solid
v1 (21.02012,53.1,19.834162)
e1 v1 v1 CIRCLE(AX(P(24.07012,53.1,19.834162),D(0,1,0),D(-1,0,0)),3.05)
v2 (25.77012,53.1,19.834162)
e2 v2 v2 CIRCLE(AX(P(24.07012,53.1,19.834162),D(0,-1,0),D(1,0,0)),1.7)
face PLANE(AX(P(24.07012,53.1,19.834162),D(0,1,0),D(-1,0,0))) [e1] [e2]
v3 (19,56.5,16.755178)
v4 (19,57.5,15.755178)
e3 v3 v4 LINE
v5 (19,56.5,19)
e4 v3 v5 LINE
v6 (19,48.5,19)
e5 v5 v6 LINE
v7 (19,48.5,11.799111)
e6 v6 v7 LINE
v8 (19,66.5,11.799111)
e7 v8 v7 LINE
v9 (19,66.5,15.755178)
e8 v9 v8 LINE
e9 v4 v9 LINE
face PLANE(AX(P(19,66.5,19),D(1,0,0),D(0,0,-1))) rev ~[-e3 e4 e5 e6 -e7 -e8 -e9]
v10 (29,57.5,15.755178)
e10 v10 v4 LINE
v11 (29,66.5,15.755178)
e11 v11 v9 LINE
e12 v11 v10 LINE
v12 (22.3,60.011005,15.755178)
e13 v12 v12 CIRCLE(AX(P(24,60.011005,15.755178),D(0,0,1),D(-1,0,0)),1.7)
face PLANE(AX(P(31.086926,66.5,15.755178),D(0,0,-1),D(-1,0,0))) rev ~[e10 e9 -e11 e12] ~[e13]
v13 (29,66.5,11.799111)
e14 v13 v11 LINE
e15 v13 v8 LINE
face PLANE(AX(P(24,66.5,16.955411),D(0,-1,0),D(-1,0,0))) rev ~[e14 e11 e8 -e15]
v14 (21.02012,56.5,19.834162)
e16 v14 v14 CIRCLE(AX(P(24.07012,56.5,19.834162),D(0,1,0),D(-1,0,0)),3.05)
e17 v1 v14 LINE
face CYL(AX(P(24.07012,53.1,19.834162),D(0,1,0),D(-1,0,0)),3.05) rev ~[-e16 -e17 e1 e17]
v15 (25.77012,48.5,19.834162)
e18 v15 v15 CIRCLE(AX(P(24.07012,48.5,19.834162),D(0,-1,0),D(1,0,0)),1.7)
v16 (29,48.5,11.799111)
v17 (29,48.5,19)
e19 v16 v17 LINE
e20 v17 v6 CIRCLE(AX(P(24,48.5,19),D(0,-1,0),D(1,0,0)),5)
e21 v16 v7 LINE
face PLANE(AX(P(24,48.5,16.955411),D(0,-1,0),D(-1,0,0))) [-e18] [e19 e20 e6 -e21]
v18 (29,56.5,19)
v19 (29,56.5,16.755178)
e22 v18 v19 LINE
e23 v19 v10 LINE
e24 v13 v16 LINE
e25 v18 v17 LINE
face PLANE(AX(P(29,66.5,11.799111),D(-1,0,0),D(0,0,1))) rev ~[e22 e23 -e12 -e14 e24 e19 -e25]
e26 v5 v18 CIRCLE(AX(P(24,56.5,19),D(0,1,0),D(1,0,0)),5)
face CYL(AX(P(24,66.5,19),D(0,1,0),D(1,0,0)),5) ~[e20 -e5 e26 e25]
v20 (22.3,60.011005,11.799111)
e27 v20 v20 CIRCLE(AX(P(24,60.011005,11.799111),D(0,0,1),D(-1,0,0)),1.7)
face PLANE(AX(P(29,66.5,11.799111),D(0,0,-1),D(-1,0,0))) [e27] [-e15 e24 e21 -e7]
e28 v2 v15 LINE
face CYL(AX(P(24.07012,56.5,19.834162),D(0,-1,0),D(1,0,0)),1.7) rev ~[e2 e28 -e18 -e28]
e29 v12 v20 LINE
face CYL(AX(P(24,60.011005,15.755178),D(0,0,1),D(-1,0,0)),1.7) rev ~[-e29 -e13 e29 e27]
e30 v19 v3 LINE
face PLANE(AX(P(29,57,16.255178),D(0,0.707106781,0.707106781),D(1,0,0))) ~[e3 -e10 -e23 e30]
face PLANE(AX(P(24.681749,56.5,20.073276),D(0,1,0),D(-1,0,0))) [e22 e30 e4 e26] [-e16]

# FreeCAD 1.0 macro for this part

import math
import FreeCAD as App
import Part
import Sketcher
from FreeCAD import Vector


def edges_at(feature, points):
    """Names of the edges that pass closest to the given points."""
    edges = feature.Shape.Edges
    near = lambda p: min(range(len(edges)), key=lambda i: edges[i].distToShape(Part.Vertex(*p))[0])
    return sorted({f"Edge{near(p) + 1}" for p in points})


def add_polygon(sketch, points):
    """Adds a closed chain of lines whose ends are joined by coincident constraints."""
    first, n = sketch.GeometryCount, len(points)
    for a, b in zip(points, points[1:] + points[:1]):
        sketch.addGeometry(Part.LineSegment(App.Vector(*a, 0), App.Vector(*b, 0)), False)
    for i in range(n):
        sketch.addConstraint(Sketcher.Constraint("Coincident", first + i, 2, first + (i + 1) % n, 1))

doc = App.newDocument("Part")
body = doc.addObject("PartDesign::Body", "Body")

sketch1 = doc.addObject("Sketcher::SketchObject", "Sketch")
body.addObject(sketch1)
sketch1.AttachmentSupport = (doc.XZ_Plane, [""])
sketch1.MapMode = "FlatFace"
sketch1.addGeometry([
    Part.ArcOfCircle(Part.Circle(Vector(0, 0, 0), Vector(0, 0, 1), 5), math.radians(180), math.radians(360)),
    Part.LineSegment(Vector(5, 0, 0), Vector(5, 7, 0)),
    Part.LineSegment(Vector(5, 7, 0), Vector(-5, 7, 0)),
    Part.LineSegment(Vector(-5, 7, 0), Vector(-5, 0, 0)),
], False)
sketch1.addConstraint([
    Sketcher.Constraint("Tangent", 0, 2, 1, 1),
    Sketcher.Constraint("Coincident", 1, 2, 2, 1),
    Sketcher.Constraint("Coincident", 2, 2, 3, 1),
    Sketcher.Constraint("Tangent", 3, 2, 0, 1),
    Sketcher.Constraint("Vertical", 1),
    Sketcher.Constraint("Horizontal", 2),
    Sketcher.Constraint("Vertical", 3),
    Sketcher.Constraint("Coincident", 0, 3, -1, 1),
    Sketcher.Constraint("Radius", 0, 5.0),
    Sketcher.Constraint("DistanceY", 1, 1, 1, 2, 7.200889),
])
pad1 = doc.addObject("PartDesign::Pad", "Pad")
body.addObject(pad1)
pad1.Profile = sketch1
pad1.Length = 18

sketch2 = doc.addObject("Sketcher::SketchObject", "Sketch001")
body.addObject(sketch2)
sketch2.AttachmentSupport = (doc.XZ_Plane, [""])
sketch2.MapMode = "FlatFace"
add_polygon(sketch2, [(-7, -5), (-7, 3), (6, 3), (6, -5)])
sketch2.addConstraint([
    Sketcher.Constraint("Vertical", 0),
    Sketcher.Constraint("Horizontal", 1),
    Sketcher.Constraint("Vertical", 2),
    Sketcher.Constraint("Horizontal", 3),
    Sketcher.Constraint("DistanceX", 1, 1, 1, 2, 12.810354),
    Sketcher.Constraint("DistanceY", 0, 1, 0, 2, 8.636197),
    Sketcher.Constraint("DistanceX", -1, 1, 1, 2, 5.723428),
    Sketcher.Constraint("DistanceY", -1, 1, 0, 2, 3.244822),
])
pocket1 = doc.addObject("PartDesign::Pocket", "Pocket")
body.addObject(pocket1)
pocket1.Profile = sketch2
pocket1.Length = 10
pocket1.Reversed = True

sketch3 = doc.addObject("Sketcher::SketchObject", "Sketch002")
body.addObject(sketch3)
sketch3.AttachmentSupport = (doc.XZ_Plane, [""])
sketch3.MapMode = "FlatFace"
sketch3.AttachmentOffset = App.Placement(Vector(0, 0, 10), App.Rotation())
sketch3.addGeometry(Part.Circle(Vector(-0.1, -0.8, 0), Vector(0, 0, 1), 1.7), False)
sketch3.addConstraint([
    Sketcher.Constraint("Diameter", 0, 3.4),
    Sketcher.Constraint("DistanceX", 0, 3, -1, 1, 0.07012),
    Sketcher.Constraint("DistanceY", 0, 3, -1, 1, 0.834162),
])
doc.recompute()
hole = doc.addObject("PartDesign::Hole", "Hole")
body.addObject(hole)
hole.Profile = sketch3
hole.ThreadType = "None"
hole.Diameter = 3.4
hole.DepthType = "Dimension"
hole.Depth = 25
hole.DrillPoint = "Flat"
hole.HoleCutType = "Counterbore"
hole.HoleCutDiameter = 6.1
hole.HoleCutDepth = 3.4
hole.Reversed = True

sketch4 = doc.addObject("Sketcher::SketchObject", "Sketch003")
body.addObject(sketch4)
sketch4.AttachmentSupport = (doc.XY_Plane, [""])
sketch4.MapMode = "FlatFace"
sketch4.AttachmentOffset = App.Placement(Vector(0, 0, 3.244822), App.Rotation())
sketch4.addGeometry(Part.Circle(Vector(0, -6.5, 0), Vector(0, 0, 1), 1.7), False)
sketch4.addConstraint([
    Sketcher.Constraint("PointOnObject", 0, 3, -2),
    Sketcher.Constraint("Diameter", 0, 3.4),
    Sketcher.Constraint("DistanceY", 0, 3, -1, 1, 6.488995),
])
pocket2 = doc.addObject("PartDesign::Pocket", "Pocket001")
body.addObject(pocket2)
pocket2.Profile = sketch4
pocket2.Length = 25
pocket2.Reversed = True
doc.recompute()

chamfer = doc.addObject("PartDesign::Chamfer", "Chamfer")
body.addObject(chamfer)
chamfer.Base = (pocket2, edges_at(pocket2, [(0, -10, 3.245)]))
chamfer.Size = 1
body2 = doc.addObject("PartDesign::Body", "Body001")
doc.recompute()

body.Placement = App.Placement(Vector(24, 66.5, 19), App.Rotation(Vector(0, 1, 0), 180))
boolean = doc.addObject("PartDesign::Boolean", "Boolean")
body2.addObject(boolean)
boolean.Type = "Fuse"
boolean.addObjects([body])

doc.recompute()
